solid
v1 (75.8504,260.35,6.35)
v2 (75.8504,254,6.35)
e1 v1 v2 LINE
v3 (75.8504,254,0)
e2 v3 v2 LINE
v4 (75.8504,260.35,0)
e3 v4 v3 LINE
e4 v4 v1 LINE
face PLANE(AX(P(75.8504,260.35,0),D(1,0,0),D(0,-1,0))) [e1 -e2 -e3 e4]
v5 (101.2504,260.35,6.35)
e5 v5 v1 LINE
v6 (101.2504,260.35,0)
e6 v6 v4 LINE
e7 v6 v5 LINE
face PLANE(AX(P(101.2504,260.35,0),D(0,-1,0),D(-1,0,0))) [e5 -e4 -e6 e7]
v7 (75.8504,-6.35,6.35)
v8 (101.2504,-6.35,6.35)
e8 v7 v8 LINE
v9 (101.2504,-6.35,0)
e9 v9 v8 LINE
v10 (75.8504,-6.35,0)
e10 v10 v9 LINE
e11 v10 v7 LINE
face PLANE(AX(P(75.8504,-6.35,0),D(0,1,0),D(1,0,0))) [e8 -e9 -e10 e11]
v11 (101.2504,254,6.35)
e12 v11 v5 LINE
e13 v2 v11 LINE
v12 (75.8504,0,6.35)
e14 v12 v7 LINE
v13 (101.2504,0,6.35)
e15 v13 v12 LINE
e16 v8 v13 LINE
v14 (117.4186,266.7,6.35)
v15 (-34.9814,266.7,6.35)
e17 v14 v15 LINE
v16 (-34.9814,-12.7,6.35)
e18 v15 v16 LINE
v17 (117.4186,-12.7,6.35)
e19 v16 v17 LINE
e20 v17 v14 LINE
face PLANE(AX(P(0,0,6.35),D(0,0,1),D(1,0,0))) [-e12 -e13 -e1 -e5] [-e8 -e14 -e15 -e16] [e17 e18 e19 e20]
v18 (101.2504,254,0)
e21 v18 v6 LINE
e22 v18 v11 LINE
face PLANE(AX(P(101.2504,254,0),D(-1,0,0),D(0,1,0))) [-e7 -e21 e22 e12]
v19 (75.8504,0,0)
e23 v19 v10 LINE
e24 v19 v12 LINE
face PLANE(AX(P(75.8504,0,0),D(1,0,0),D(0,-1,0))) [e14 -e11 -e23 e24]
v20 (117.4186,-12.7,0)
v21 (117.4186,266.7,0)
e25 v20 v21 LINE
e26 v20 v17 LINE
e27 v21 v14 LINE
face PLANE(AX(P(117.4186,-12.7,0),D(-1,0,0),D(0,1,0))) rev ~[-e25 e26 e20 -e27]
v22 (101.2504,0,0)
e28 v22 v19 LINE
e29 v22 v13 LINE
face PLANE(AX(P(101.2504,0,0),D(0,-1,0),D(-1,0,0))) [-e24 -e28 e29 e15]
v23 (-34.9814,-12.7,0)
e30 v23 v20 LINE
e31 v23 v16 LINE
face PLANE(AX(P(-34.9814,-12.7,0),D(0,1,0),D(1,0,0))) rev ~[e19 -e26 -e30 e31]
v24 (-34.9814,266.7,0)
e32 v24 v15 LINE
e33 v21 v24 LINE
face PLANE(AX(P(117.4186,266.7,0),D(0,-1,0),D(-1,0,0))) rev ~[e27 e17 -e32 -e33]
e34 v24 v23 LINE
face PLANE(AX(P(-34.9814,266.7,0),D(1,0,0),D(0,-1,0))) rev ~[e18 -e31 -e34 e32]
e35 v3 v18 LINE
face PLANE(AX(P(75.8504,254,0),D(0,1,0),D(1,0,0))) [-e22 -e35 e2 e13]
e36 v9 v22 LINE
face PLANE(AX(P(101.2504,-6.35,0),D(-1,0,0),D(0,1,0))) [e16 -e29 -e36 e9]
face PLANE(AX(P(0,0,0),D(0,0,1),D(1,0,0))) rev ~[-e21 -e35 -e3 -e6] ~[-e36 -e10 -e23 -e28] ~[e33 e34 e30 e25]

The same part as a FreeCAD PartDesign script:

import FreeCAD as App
import Part
import Sketcher
Q = App.Units.Quantity

doc = App.newDocument("Part")
body = doc.addObject("PartDesign::Body", "Body")

# Sketch on XY plane
sketch1 = body.newObject("Sketcher::SketchObject", "Sketch")
sketch1.AttachmentSupport = (doc.getObject("XY_Plane"), [""])
sketch1.MapMode = "FlatFace"
sketch1.addGeometry([
    Part.LineSegment(App.Vector(117, 267, 0), App.Vector(-35, 267, 0)),  # 0
    Part.LineSegment(App.Vector(-35, 267, 0), App.Vector(-35, -13, 0)),  # 1
    Part.LineSegment(App.Vector(-35, -13, 0), App.Vector(117, -13, 0)),  # 2
    Part.LineSegment(App.Vector(117, -13, 0), App.Vector(117, 267, 0)),  # 3
    Part.LineSegment(App.Vector(101, 0, 0), App.Vector(101, -6, 0)),  # 4
    Part.LineSegment(App.Vector(101, -6, 0), App.Vector(76, -6, 0)),  # 5
    Part.LineSegment(App.Vector(76, -6, 0), App.Vector(76, 0, 0)),  # 6
    Part.LineSegment(App.Vector(76, 0, 0), App.Vector(101, 0, 0)),  # 7
    Part.LineSegment(App.Vector(101, 260, 0), App.Vector(101, 254, 0)),  # 8
    Part.LineSegment(App.Vector(101, 254, 0), App.Vector(76, 254, 0)),  # 9
    Part.LineSegment(App.Vector(76, 254, 0), App.Vector(76, 260, 0)),  # 10
    Part.LineSegment(App.Vector(76, 260, 0), App.Vector(101, 260, 0)),  # 11
], False)
sketch1.addConstraint([
    Sketcher.Constraint("Coincident", 0, 2, 1, 1),
    Sketcher.Constraint("Coincident", 1, 2, 2, 1),
    Sketcher.Constraint("Coincident", 2, 2, 3, 1),
    Sketcher.Constraint("Coincident", 3, 2, 0, 1),
    Sketcher.Constraint("Coincident", 4, 2, 5, 1),
    Sketcher.Constraint("Coincident", 5, 2, 6, 1),
    Sketcher.Constraint("Coincident", 6, 2, 7, 1),
    Sketcher.Constraint("Coincident", 7, 2, 4, 1),
    Sketcher.Constraint("Coincident", 8, 2, 9, 1),
    Sketcher.Constraint("Coincident", 9, 2, 10, 1),
    Sketcher.Constraint("Coincident", 10, 2, 11, 1),
    Sketcher.Constraint("Coincident", 11, 2, 8, 1),
    Sketcher.Constraint("Horizontal", 0),
    Sketcher.Constraint("Vertical", 1),
    Sketcher.Constraint("Horizontal", 2),
    Sketcher.Constraint("Vertical", 3),
    Sketcher.Constraint("Vertical", 4),
    Sketcher.Constraint("Horizontal", 5),
    Sketcher.Constraint("Vertical", 6),
    Sketcher.Constraint("Horizontal", 7),
    Sketcher.Constraint("Vertical", 8),
    Sketcher.Constraint("Horizontal", 9),
    Sketcher.Constraint("Vertical", 10),
    Sketcher.Constraint("Horizontal", 11),
    Sketcher.Constraint("PointOnObject", 6, 2, -1),
    Sketcher.Constraint("Vertical", 7, 2, 8, 2),
    Sketcher.Constraint("Vertical", 6, 2, 9, 2),
    Sketcher.Constraint("Equal", 6, 8),
    Sketcher.Constraint("DistanceX", 0, 2, 0, 1, Q("6 in")),
    Sketcher.Constraint("DistanceX", 5, 2, 5, 1, Q("1 in")),
    Sketcher.Constraint("DistanceY", 1, 2, 1, 1, Q("11 in")),
    Sketcher.Constraint("DistanceY", -1, 1, 8, 2, Q("10 in")),
    Sketcher.Constraint("DistanceY", 4, 2, 4, 1, Q("0.25 in")),
    Sketcher.Constraint("DistanceY", -1, 1, 0, 2, Q("10.5 in")),
    Sketcher.Constraint("DistanceX", 0, 2, -1, 1, 34.9814),
    Sketcher.Constraint("DistanceX", -1, 1, 4, 2, 101.2504),
])
pad1 = body.newObject("PartDesign::Pad", "Pad")
pad1.Profile = sketch1
pad1.Length = Q("0.25 in")

doc.recompute()
